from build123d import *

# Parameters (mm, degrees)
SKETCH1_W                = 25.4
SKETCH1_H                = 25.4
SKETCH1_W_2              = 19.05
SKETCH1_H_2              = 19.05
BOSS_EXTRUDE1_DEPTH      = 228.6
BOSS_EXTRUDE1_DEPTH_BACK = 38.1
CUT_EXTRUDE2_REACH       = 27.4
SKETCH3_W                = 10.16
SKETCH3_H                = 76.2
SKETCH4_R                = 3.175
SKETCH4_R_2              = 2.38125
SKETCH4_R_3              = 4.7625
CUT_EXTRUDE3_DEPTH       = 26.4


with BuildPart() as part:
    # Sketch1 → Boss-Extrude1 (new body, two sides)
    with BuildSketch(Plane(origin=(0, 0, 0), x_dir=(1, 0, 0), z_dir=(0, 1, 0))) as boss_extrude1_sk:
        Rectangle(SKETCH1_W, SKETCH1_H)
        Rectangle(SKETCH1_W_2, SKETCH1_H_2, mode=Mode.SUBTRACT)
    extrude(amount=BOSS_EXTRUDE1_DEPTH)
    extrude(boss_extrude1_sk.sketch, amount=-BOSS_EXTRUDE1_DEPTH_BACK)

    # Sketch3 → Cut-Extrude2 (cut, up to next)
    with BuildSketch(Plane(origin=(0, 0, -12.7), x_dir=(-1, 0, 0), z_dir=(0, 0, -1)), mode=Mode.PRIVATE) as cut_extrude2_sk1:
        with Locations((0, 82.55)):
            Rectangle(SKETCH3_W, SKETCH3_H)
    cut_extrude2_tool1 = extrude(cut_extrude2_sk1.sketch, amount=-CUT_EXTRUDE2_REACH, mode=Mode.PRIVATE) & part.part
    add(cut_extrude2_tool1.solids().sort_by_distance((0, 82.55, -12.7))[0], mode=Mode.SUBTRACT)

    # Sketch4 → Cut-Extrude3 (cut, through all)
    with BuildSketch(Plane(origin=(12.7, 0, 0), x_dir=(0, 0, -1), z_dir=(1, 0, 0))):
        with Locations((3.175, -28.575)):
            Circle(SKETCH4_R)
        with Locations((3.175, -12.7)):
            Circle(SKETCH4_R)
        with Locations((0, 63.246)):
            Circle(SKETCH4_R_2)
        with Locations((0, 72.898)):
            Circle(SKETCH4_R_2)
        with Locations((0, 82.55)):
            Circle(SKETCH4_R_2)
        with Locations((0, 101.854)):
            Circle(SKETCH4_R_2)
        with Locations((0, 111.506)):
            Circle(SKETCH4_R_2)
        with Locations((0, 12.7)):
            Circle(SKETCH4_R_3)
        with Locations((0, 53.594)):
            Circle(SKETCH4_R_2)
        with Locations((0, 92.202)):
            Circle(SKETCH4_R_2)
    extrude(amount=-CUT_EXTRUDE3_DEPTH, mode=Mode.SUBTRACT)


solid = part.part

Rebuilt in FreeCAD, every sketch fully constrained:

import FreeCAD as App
import Part
import Sketcher

V = App.Vector
Q = App.Units.Quantity

doc = App.newDocument("Part")
params = doc.addObject("Spreadsheet::Sheet", "Params")
for row, (alias, value) in enumerate([
    ("sketch1_width", "1 in"),
    ("sketch1_width2", "0.75 in"),
    ("pad1_length", "9 in"),
    ("pad1_length2", "1.5 in"),
    ("sketch2_height", "3 in"),
    ("sketch2_width", "0.4 in"),
    ("sketch3_diameter", "0.25 in"),
    ("sketch3_diameter2", "0.1875 in"),
    ("sketch3_diameter3", "0.375 in"),
], start=1):
    params.set(f"A{row}", alias)
    params.set(f"B{row}", "=" + value)
    params.setAlias(f"B{row}", alias)

body = doc.addObject("PartDesign::Body", "Body")

# Sketch on XZ plane
sketch1 = body.newObject("Sketcher::SketchObject", "Sketch")
sketch1.AttachmentSupport = (doc.getObject("XZ_Plane"), [""])
sketch1.MapMode = "FlatFace"
sketch1.addGeometry([
    Part.LineSegment(V(-12.7, -12.7, 0), V(-12.7, 12.7, 0)),  # 0
    Part.LineSegment(V(-12.7, 12.7, 0), V(12.7, 12.7, 0)),  # 1
    Part.LineSegment(V(12.7, 12.7, 0), V(12.7, -12.7, 0)),  # 2
    Part.LineSegment(V(12.7, -12.7, 0), V(-12.7, -12.7, 0)),  # 3
    Part.LineSegment(V(9.525, 9.525, 0), V(-9.525, 9.525, 0)),  # 4
    Part.LineSegment(V(-9.525, 9.525, 0), V(-9.525, -9.525, 0)),  # 5
    Part.LineSegment(V(-9.525, -9.525, 0), V(9.525, -9.525, 0)),  # 6
    Part.LineSegment(V(9.525, -9.525, 0), V(9.525, 9.525, 0)),  # 7
], False)
sketch1.addConstraint([
    Sketcher.Constraint("Coincident", 0, 2, 1, 1),
    Sketcher.Constraint("Coincident", 1, 2, 2, 1),
    Sketcher.Constraint("Coincident", 2, 2, 3, 1),
    Sketcher.Constraint("Coincident", 3, 2, 0, 1),
    Sketcher.Constraint("Coincident", 4, 2, 5, 1),
    Sketcher.Constraint("Coincident", 5, 2, 6, 1),
    Sketcher.Constraint("Coincident", 6, 2, 7, 1),
    Sketcher.Constraint("Coincident", 7, 2, 4, 1),
    Sketcher.Constraint("Vertical", 0),
    Sketcher.Constraint("Horizontal", 1),
    Sketcher.Constraint("Vertical", 2),
    Sketcher.Constraint("Horizontal", 3),
    Sketcher.Constraint("Horizontal", 4),
    Sketcher.Constraint("Vertical", 5),
    Sketcher.Constraint("Horizontal", 6),
    Sketcher.Constraint("Vertical", 7),
    Sketcher.Constraint("Symmetric", 0, 2, 2, 2, -1, 1),
    Sketcher.Constraint("Symmetric", 4, 2, 6, 2, -1, 1),
    Sketcher.Constraint("Equal", 3, 0),
    Sketcher.Constraint("Equal", 6, 5),
    Sketcher.Constraint("DistanceX", 1, 1, 1, 2, Q("1 in")),
    Sketcher.Constraint("DistanceX", 4, 2, 4, 1, Q("0.75 in")),
])
sketch1.setExpression("Constraints[20]", "Params.sketch1_width")
sketch1.setExpression("Constraints[21]", "Params.sketch1_width2")
pad1 = body.newObject("PartDesign::Pad", "Pad")
pad1.Profile = sketch1
pad1.Type = "TwoLengths"
pad1.setExpression("Length", "Params.pad1_length")
pad1.setExpression("Length2", "Params.pad1_length2")
pad1.Reversed = True

# Sketch on XY plane
sketch2 = body.newObject("Sketcher::SketchObject", "Sketch001")
sketch2.AttachmentSupport = (doc.getObject("XY_Plane"), [""])
sketch2.MapMode = "FlatFace"
sketch2.AttachmentOffset = App.Placement(V(0, 0, -0.5 * 25.4), App.Rotation())
sketch2.addGeometry([
    Part.LineSegment(V(5.08, 120.65, 0), V(5.08, 44.45, 0)),
    Part.LineSegment(V(5.08, 44.45, 0), V(-5.08, 44.45, 0)),
    Part.LineSegment(V(-5.08, 44.45, 0), V(-5.08, 120.65, 0)),
    Part.LineSegment(V(-5.08, 120.65, 0), V(5.08, 120.65, 0)),
], False)
sketch2.addConstraint([
    Sketcher.Constraint("Coincident", 0, 2, 1, 1),
    Sketcher.Constraint("Coincident", 1, 2, 2, 1),
    Sketcher.Constraint("Coincident", 2, 2, 3, 1),
    Sketcher.Constraint("Coincident", 3, 2, 0, 1),
    Sketcher.Constraint("Vertical", 0),
    Sketcher.Constraint("Horizontal", 1),
    Sketcher.Constraint("Vertical", 2),
    Sketcher.Constraint("Horizontal", 3),
    Sketcher.Constraint("DistanceY", 0, 2, 0, 1, Q("3 in")),
    Sketcher.Constraint("DistanceX", 1, 2, 1, 1, Q("0.4 in")),
    Sketcher.Constraint("DistanceX", -1, 1, 0, 2, Q("0.2 in")),
    Sketcher.Constraint("DistanceY", -1, 1, 0, 2, Q("1.75 in")),
])
sketch2.setExpression("Constraints[8]", "Params.sketch2_height")
sketch2.setExpression("Constraints[9]", "Params.sketch2_width")
pocket1 = body.newObject("PartDesign::Pocket", "Pocket")
pocket1.Profile = sketch2
pocket1.Type = "UpToFirst"
pocket1.Reversed = True

# Sketch on YZ plane
sketch3 = body.newObject("Sketcher::SketchObject", "Sketch002")
sketch3.AttachmentSupport = (doc.getObject("YZ_Plane"), [""])
sketch3.MapMode = "FlatFace"
sketch3.AttachmentOffset = App.Placement(V(0, 0, 0.5 * 25.4), App.Rotation())
sketch3.addGeometry([
    Part.Circle(V(-28.575, -3.175, 0), V(0, 0, 1), 3.175),  # 0
    Part.Circle(V(-12.7, -3.175, 0), V(0, 0, 1), 3.175),  # 1
    Part.Circle(V(63.246, 0, 0), V(0, 0, 1), 2.38125),  # 2
    Part.Circle(V(72.898, 0, 0), V(0, 0, 1), 2.38125),  # 3
    Part.Circle(V(82.55, 0, 0), V(0, 0, 1), 2.38125),  # 4
    Part.Circle(V(101.854, 0, 0), V(0, 0, 1), 2.38125),  # 5
    Part.Circle(V(111.506, 0, 0), V(0, 0, 1), 2.38125),  # 6
    Part.Circle(V(12.7, 0, 0), V(0, 0, 1), 4.7625),  # 7
    Part.Circle(V(53.594, 0, 0), V(0, 0, 1), 2.38125),  # 8
    Part.Circle(V(92.202, 0, 0), V(0, 0, 1), 2.38125),  # 9
], False)
sketch3.addConstraint([
    Sketcher.Constraint("Equal", 0, 1),
    Sketcher.Constraint("Equal", 2, 3),
    Sketcher.Constraint("Equal", 3, 4),
    Sketcher.Constraint("Equal", 4, 5),
    Sketcher.Constraint("Equal", 5, 6),
    Sketcher.Constraint("Equal", 6, 8),
    Sketcher.Constraint("Equal", 8, 9),
    Sketcher.Constraint("PointOnObject", 2, 3, -1),
    Sketcher.Constraint("PointOnObject", 3, 3, -1),
    Sketcher.Constraint("PointOnObject", 4, 3, -1),
    Sketcher.Constraint("PointOnObject", 5, 3, -1),
    Sketcher.Constraint("PointOnObject", 6, 3, -1),
    Sketcher.Constraint("PointOnObject", 7, 3, -1),
    Sketcher.Constraint("PointOnObject", 8, 3, -1),
    Sketcher.Constraint("PointOnObject", 9, 3, -1),
    Sketcher.Constraint("Horizontal", 0, 3, 1, 3),
    Sketcher.Constraint("Diameter", 0, Q("0.25 in")),
    Sketcher.Constraint("Diameter", 2, Q("0.1875 in")),
    Sketcher.Constraint("Diameter", 7, Q("0.375 in")),
    Sketcher.Constraint("DistanceX", 1, 3, 7, 3, Q("1 in")),
    Sketcher.Constraint("DistanceX", 1, 3, -1, 1, Q("0.5 in")),
    Sketcher.Constraint("DistanceX", 2, 3, 6, 3, Q("1.9 in")),
    Sketcher.Constraint("DistanceX", 8, 3, 5, 3, Q("1.9 in")),
    Sketcher.Constraint("DistanceX", -1, 1, 2, 3, Q("2.49 in")),
    Sketcher.Constraint("DistanceX", -1, 1, 3, 3, Q("2.87 in")),
    Sketcher.Constraint("DistanceX", -1, 1, 4, 3, Q("3.25 in")),
    Sketcher.Constraint("DistanceX", -1, 1, 5, 3, Q("4.01 in")),
    Sketcher.Constraint("DistanceX", -1, 1, 9, 3, Q("3.63 in")),
    Sketcher.Constraint("DistanceX", 0, 3, -1, 1, Q("1.125 in")),
    Sketcher.Constraint("DistanceY", 0, 3, -1, 1, Q("0.125 in")),
])
sketch3.setExpression("Constraints[16]", "Params.sketch3_diameter")
sketch3.setExpression("Constraints[17]", "Params.sketch3_diameter2")
sketch3.setExpression("Constraints[18]", "Params.sketch3_diameter3")
pocket2 = body.newObject("PartDesign::Pocket", "Pocket001")
pocket2.Profile = sketch3
pocket2.Type = "ThroughAll"

doc.recompute()
